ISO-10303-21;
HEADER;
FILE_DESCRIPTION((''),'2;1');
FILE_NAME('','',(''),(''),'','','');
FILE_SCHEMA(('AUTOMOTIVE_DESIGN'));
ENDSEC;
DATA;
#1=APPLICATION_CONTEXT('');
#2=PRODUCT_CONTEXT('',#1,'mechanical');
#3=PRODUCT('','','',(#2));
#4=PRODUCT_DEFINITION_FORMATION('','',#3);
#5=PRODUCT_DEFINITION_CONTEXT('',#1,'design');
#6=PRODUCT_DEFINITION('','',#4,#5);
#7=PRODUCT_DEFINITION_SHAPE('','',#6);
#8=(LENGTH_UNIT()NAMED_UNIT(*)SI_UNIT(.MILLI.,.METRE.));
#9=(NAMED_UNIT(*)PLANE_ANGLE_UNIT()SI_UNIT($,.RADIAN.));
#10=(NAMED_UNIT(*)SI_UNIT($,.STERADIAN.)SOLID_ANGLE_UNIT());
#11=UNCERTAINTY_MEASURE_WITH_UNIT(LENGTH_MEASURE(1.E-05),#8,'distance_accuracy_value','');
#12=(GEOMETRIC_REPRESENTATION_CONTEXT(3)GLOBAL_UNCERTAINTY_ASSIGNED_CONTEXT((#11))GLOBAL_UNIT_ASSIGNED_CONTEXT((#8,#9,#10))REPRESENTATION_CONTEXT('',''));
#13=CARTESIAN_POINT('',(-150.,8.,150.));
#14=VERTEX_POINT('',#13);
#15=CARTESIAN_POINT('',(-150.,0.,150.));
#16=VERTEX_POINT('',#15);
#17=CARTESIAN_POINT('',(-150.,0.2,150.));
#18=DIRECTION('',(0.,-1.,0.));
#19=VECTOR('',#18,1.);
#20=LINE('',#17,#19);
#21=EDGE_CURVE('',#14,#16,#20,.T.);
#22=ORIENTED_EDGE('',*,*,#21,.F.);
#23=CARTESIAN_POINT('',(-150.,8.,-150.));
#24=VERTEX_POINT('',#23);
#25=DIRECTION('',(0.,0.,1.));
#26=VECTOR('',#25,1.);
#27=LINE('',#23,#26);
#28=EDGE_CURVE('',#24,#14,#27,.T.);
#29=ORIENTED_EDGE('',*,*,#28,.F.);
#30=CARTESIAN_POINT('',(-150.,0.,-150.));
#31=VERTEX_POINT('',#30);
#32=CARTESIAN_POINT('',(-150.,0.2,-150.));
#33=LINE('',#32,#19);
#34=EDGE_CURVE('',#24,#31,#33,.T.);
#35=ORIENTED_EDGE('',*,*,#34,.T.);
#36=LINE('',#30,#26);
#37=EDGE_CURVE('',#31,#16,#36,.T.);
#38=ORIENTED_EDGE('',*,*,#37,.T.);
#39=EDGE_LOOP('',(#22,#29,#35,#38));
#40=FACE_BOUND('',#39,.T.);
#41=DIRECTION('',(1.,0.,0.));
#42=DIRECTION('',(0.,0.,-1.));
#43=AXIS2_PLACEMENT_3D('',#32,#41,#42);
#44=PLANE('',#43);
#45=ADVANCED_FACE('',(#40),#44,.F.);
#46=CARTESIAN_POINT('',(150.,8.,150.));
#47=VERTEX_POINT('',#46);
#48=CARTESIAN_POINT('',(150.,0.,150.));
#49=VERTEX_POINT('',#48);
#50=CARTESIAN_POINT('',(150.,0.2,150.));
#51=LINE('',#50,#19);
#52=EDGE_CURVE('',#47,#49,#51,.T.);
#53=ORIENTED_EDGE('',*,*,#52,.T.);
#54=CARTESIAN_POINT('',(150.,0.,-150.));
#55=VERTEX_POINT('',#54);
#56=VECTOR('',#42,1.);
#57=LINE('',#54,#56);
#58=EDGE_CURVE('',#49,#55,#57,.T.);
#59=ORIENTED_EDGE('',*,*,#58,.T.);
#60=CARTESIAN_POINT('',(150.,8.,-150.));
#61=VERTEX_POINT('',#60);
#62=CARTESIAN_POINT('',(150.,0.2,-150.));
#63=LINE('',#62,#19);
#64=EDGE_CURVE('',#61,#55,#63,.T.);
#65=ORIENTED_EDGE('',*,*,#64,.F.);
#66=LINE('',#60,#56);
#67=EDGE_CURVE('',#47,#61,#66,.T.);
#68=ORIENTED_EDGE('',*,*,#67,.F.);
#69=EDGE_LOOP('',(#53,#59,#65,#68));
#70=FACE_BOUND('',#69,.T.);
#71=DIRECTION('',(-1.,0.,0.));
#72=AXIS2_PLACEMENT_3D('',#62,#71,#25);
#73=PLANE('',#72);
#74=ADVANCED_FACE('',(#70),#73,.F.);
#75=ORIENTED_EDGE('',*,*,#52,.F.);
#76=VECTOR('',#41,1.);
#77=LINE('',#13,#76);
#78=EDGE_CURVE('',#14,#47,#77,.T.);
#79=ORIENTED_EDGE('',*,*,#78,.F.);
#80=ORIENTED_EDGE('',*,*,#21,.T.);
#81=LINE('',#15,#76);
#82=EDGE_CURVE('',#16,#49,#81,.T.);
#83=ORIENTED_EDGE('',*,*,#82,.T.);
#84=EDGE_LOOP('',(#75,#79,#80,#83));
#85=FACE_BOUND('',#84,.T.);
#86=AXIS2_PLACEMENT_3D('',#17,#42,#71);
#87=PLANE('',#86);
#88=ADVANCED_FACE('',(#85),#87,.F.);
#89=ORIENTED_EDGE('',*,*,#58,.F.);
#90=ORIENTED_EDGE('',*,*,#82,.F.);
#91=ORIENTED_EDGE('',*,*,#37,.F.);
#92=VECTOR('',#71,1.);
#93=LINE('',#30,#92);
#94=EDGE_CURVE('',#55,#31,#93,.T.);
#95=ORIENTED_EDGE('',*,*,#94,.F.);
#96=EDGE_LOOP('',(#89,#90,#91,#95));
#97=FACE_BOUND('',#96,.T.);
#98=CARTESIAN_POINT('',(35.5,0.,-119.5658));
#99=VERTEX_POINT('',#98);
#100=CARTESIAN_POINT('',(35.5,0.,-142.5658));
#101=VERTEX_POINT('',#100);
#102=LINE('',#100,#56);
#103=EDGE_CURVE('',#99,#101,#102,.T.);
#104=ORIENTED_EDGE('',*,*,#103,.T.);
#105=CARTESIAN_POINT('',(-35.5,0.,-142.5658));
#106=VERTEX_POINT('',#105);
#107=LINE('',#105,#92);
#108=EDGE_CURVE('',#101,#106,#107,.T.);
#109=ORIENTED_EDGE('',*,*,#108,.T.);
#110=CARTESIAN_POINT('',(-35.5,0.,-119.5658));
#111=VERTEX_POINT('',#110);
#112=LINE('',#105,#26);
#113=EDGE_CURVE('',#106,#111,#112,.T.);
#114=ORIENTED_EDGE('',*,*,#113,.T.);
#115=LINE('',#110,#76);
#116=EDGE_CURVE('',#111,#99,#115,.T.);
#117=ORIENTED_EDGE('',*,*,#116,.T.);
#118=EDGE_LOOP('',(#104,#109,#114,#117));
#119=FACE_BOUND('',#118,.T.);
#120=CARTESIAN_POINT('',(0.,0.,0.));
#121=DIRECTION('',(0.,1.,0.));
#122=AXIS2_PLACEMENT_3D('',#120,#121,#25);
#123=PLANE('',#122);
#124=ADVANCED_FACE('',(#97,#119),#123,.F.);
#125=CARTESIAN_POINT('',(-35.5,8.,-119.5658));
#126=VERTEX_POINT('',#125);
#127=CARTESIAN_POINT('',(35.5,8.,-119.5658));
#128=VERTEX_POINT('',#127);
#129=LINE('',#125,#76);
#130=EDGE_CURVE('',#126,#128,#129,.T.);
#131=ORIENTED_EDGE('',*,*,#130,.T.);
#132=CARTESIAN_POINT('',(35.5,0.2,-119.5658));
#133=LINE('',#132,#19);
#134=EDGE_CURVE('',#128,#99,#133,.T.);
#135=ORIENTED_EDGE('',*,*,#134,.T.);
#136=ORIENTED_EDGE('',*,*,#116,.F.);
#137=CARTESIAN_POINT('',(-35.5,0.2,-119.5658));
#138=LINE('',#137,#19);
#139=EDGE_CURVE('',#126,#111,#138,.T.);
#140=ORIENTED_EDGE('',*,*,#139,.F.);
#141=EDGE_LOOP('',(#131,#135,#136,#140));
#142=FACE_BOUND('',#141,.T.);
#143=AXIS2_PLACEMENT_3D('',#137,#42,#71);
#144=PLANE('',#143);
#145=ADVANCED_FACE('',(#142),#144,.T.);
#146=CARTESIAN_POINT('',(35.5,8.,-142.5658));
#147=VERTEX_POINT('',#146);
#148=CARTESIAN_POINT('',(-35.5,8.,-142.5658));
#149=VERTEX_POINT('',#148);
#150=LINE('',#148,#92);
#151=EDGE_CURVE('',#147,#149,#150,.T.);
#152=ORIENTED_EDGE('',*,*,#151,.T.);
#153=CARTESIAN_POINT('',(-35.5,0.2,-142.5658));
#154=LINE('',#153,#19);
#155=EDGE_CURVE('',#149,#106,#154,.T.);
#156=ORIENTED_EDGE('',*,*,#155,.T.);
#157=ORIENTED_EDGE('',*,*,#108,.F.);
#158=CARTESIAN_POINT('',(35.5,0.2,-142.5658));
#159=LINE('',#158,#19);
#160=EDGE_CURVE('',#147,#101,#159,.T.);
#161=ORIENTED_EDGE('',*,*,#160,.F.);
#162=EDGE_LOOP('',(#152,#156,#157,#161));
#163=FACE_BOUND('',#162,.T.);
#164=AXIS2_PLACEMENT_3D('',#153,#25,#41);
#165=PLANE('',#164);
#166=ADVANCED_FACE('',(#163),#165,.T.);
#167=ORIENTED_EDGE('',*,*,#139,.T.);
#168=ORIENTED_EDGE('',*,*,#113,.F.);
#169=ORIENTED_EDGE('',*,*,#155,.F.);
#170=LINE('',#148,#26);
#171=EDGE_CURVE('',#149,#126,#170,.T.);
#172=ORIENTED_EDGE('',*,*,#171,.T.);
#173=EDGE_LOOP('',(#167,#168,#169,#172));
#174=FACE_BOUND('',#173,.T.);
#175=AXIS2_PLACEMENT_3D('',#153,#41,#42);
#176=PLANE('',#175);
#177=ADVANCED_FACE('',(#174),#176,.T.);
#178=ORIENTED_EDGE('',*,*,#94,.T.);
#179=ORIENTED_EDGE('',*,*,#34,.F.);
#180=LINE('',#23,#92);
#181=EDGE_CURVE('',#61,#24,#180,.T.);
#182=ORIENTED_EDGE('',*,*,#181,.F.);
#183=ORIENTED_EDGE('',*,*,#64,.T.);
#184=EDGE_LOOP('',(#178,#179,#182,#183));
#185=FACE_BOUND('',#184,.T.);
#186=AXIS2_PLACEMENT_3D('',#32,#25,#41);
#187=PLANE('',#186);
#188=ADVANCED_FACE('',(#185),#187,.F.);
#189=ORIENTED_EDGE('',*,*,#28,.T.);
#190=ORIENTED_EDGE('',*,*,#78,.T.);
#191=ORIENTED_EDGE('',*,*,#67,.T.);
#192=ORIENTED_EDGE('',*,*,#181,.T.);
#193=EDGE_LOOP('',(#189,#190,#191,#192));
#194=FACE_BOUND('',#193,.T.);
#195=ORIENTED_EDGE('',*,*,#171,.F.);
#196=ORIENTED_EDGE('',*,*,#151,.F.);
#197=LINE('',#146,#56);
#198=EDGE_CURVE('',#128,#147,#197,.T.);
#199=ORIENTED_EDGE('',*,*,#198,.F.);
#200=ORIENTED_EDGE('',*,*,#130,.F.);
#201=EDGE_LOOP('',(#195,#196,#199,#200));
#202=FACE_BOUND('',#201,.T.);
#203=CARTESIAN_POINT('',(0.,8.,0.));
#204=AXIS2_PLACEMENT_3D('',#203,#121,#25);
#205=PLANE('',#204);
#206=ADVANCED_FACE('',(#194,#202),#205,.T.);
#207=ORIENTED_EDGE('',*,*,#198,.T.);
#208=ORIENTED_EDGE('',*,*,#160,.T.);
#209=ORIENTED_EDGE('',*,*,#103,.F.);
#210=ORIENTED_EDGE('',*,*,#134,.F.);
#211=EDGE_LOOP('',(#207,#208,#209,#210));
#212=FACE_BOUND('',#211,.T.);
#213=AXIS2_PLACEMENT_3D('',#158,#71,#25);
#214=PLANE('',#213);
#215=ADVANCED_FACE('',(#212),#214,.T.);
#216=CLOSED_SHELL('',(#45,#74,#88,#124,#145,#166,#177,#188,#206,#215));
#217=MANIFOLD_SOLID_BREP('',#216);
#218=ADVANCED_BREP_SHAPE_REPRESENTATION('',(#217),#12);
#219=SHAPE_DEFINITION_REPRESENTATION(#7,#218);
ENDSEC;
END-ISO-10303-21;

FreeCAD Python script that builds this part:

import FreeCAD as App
import Part
import Sketcher


def add_polygon(sketch, points):
    """Adds a closed chain of lines whose ends are joined by coincident constraints."""
    first, n = sketch.GeometryCount, len(points)
    for a, b in zip(points, points[1:] + points[:1]):
        sketch.addGeometry(Part.LineSegment(App.Vector(*a, 0), App.Vector(*b, 0)), False)
    for i in range(n):
        sketch.addConstraint(Sketcher.Constraint("Coincident", first + i, 2, first + (i + 1) % n, 1))

doc = App.newDocument("Part")
params = doc.addObject("Spreadsheet::Sheet", "Params")
for row, (alias, value) in enumerate([
    ("sketch1_width", "300 mm"),
    ("sketch1_width2", "71 mm"),
    ("sketch1_height", "23 mm"),
    ("pad1_length", "0.2 mm"),
    ("sketch2_width", "300 mm"),
    ("sketch2_width2", "71 mm"),
    ("sketch2_height", "23 mm"),
    ("pad2_length", "8 mm"),
], start=1):
    params.set(f"A{row}", alias)
    params.set(f"B{row}", "=" + value)
    params.setAlias(f"B{row}", alias)

body = doc.addObject("PartDesign::Body", "Body")

sketch1 = body.newObject("Sketcher::SketchObject", "Sketch")
sketch1.AttachmentSupport = (doc.getObject("XZ_Plane"), [""])
sketch1.MapMode = "FlatFace"
add_polygon(sketch1, [(-150, -150), (-150, 150), (150, 150), (150, -150)])
add_polygon(sketch1, [(36, -120), (-36, -120), (-36, -143), (36, -143)])
sketch1.addConstraint([
    Sketcher.Constraint("Vertical", 0),
    Sketcher.Constraint("Horizontal", 1),
    Sketcher.Constraint("Vertical", 2),
    Sketcher.Constraint("Horizontal", 3),
    Sketcher.Constraint("Horizontal", 4),
    Sketcher.Constraint("Vertical", 5),
    Sketcher.Constraint("Horizontal", 6),
    Sketcher.Constraint("Vertical", 7),
    Sketcher.Constraint("Symmetric", 0, 2, 2, 2, -1, 1),
    Sketcher.Constraint("Equal", 3, 0),
    Sketcher.Constraint("DistanceX", 1, 1, 1, 2, 300.0),
    Sketcher.Constraint("DistanceX", 4, 2, 4, 1, 71.0),
    Sketcher.Constraint("DistanceY", 5, 2, 5, 1, 23.0),
    Sketcher.Constraint("DistanceX", 4, 2, -1, 1, 35.5),
    Sketcher.Constraint("DistanceY", 4, 2, -1, 1, 119.5658),
])
sketch1.setExpression("Constraints[18]", "Params.sketch1_width")
sketch1.setExpression("Constraints[19]", "Params.sketch1_width2")
sketch1.setExpression("Constraints[20]", "Params.sketch1_height")
pad1 = body.newObject("PartDesign::Pad", "Pad")
pad1.Profile = sketch1
pad1.setExpression("Length", "Params.pad1_length")
pad1.Reversed = True

sketch2 = body.newObject("Sketcher::SketchObject", "Sketch001")
sketch2.AttachmentSupport = (doc.getObject("XZ_Plane"), [""])
sketch2.MapMode = "FlatFace"
add_polygon(sketch2, [(-150, -150), (-150, 150), (150, 150), (150, -150)])
add_polygon(sketch2, [(36, -120), (-36, -120), (-36, -143), (36, -143)])
sketch2.addConstraint([
    Sketcher.Constraint("Vertical", 0),
    Sketcher.Constraint("Horizontal", 1),
    Sketcher.Constraint("Vertical", 2),
    Sketcher.Constraint("Horizontal", 3),
    Sketcher.Constraint("Horizontal", 4),
    Sketcher.Constraint("Vertical", 5),
    Sketcher.Constraint("Horizontal", 6),
    Sketcher.Constraint("Vertical", 7),
    Sketcher.Constraint("Symmetric", 0, 2, 2, 2, -1, 1),
    Sketcher.Constraint("Equal", 3, 0),
    Sketcher.Constraint("DistanceX", 1, 1, 1, 2, 300.0),
    Sketcher.Constraint("DistanceX", 4, 2, 4, 1, 71.0),
    Sketcher.Constraint("DistanceY", 5, 2, 5, 1, 23.0),
    Sketcher.Constraint("DistanceX", 4, 2, -1, 1, 35.5),
    Sketcher.Constraint("DistanceY", 4, 2, -1, 1, 119.5658),
])
sketch2.setExpression("Constraints[18]", "Params.sketch2_width")
sketch2.setExpression("Constraints[19]", "Params.sketch2_width2")
sketch2.setExpression("Constraints[20]", "Params.sketch2_height")
pad2 = body.newObject("PartDesign::Pad", "Pad001")
pad2.Profile = sketch2
pad2.setExpression("Length", "Params.pad2_length")
pad2.Reversed = True

doc.recompute()
